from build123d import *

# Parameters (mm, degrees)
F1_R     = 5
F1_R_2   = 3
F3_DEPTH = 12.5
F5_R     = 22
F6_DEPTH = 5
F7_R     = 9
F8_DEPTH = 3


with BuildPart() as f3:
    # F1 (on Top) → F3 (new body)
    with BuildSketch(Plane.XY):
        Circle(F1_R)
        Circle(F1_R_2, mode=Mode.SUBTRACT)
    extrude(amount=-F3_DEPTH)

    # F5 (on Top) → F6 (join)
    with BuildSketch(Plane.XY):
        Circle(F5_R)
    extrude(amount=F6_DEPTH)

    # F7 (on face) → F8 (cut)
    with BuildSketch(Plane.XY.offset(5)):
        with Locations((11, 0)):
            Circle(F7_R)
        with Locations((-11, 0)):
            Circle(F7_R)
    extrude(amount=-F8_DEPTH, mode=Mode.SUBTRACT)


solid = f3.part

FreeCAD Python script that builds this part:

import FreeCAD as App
import Part
import Sketcher

V = App.Vector
Q = App.Units.Quantity

doc = App.newDocument("Part")
body = doc.addObject("PartDesign::Body", "Body")

# Sketch on XY plane
sketch1 = body.newObject("Sketcher::SketchObject", "Sketch")
sketch1.AttachmentSupport = (doc.getObject("XY_Plane"), [""])
sketch1.MapMode = "FlatFace"
sketch1.addGeometry(Part.Circle(V(0, 0, 0), V(0, 0, 1), 5), False)
sketch1.addGeometry(Part.Circle(V(0, 0, 0), V(0, 0, 1), 3), False)
sketch1.addConstraint(Sketcher.Constraint("Coincident", 0, 3, -1, 1))
sketch1.addConstraint(Sketcher.Constraint("Coincident", 1, 3, -1, 1))
sketch1.addConstraint(Sketcher.Constraint("Diameter", 0, Q("10 mm")))
sketch1.addConstraint(Sketcher.Constraint("Diameter", 1, Q("6 mm")))
pad1 = body.newObject("PartDesign::Pad", "Pad")
pad1.Profile = sketch1
pad1.Length = 12.5
pad1.Reversed = True

# Sketch on XY plane
sketch2 = body.newObject("Sketcher::SketchObject", "Sketch001")
sketch2.AttachmentSupport = (doc.getObject("XY_Plane"), [""])
sketch2.MapMode = "FlatFace"
sketch2.addGeometry(Part.Circle(V(0, 0, 0), V(0, 0, 1), 22), False)
sketch2.addConstraint(Sketcher.Constraint("Coincident", 0, 3, -1, 1))
sketch2.addConstraint(Sketcher.Constraint("Diameter", 0, Q("44 mm")))
pad2 = body.newObject("PartDesign::Pad", "Pad001")
pad2.Profile = sketch2
pad2.Length = 5

# Sketch on XY plane
sketch3 = body.newObject("Sketcher::SketchObject", "Sketch002")
sketch3.AttachmentSupport = (doc.getObject("XY_Plane"), [""])
sketch3.MapMode = "FlatFace"
sketch3.AttachmentOffset = App.Placement(V(0, 0, 5), App.Rotation())
sketch3.addGeometry(Part.Circle(V(11, 0, 0), V(0, 0, 1), 9), False)
sketch3.addGeometry(Part.Circle(V(-11, 0, 0), V(0, 0, 1), 9), False)
sketch3.addConstraint(Sketcher.Constraint("Equal", 0, 1))
sketch3.addConstraint(Sketcher.Constraint("Symmetric", 0, 3, 1, 3, -1, 1))
sketch3.addConstraint(Sketcher.Constraint("PointOnObject", 0, 3, -1))
sketch3.addConstraint(Sketcher.Constraint("Diameter", 0, Q("18 mm")))
sketch3.addConstraint(Sketcher.Constraint("DistanceX", -1, 1, 0, 3, Q("11 mm")))
pocket1 = body.newObject("PartDesign::Pocket", "Pocket")
pocket1.Profile = sketch3
pocket1.Length = 3

doc.recompute()
